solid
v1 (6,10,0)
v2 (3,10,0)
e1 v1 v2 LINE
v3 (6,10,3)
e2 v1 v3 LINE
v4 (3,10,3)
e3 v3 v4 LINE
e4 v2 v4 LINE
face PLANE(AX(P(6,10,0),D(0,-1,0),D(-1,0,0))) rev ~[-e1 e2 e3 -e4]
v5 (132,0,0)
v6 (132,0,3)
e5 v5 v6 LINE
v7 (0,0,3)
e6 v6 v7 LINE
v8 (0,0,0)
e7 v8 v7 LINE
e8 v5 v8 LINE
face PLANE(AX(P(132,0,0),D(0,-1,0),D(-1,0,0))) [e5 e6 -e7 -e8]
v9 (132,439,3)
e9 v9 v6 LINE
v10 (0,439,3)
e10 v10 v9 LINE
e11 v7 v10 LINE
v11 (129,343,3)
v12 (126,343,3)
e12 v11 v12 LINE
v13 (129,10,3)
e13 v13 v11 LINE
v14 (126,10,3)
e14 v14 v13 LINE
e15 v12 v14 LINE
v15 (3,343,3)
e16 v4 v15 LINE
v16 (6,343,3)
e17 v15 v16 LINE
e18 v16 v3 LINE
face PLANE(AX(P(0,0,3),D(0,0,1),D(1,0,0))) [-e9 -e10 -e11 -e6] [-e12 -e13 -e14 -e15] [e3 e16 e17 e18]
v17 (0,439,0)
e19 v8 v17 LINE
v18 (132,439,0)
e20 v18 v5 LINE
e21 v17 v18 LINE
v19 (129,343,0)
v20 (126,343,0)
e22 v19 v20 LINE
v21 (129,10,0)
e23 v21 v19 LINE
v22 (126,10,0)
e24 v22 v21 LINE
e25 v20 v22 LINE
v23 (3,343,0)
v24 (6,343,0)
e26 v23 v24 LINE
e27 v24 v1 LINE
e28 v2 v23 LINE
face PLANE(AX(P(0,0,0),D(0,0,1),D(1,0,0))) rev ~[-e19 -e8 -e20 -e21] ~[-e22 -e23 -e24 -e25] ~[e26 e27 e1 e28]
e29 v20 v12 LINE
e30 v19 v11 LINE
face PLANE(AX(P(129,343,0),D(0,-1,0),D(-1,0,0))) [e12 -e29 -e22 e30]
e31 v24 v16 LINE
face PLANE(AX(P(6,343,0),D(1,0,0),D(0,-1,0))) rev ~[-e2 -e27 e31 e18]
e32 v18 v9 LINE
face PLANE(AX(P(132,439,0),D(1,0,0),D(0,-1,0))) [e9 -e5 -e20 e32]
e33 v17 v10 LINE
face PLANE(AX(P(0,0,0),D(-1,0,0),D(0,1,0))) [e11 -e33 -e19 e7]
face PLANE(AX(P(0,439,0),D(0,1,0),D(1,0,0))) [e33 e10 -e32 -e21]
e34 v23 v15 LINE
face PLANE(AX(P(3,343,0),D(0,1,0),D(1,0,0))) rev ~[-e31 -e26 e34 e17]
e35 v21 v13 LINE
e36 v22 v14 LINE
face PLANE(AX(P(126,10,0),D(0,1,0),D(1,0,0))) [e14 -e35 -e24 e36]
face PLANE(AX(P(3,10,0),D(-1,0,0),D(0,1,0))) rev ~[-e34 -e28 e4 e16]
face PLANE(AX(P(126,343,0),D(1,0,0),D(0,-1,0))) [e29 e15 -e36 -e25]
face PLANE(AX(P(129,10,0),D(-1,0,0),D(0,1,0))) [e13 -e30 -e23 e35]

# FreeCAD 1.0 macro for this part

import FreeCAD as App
import Part
import Sketcher

V = App.Vector


def add_polygon(sketch, points):
    """Adds a closed chain of lines whose ends are joined by coincident constraints."""
    first, n = sketch.GeometryCount, len(points)
    for a, b in zip(points, points[1:] + points[:1]):
        sketch.addGeometry(Part.LineSegment(App.Vector(*a, 0), App.Vector(*b, 0)), False)
    for i in range(n):
        sketch.addConstraint(Sketcher.Constraint("Coincident", first + i, 2, first + (i + 1) % n, 1))

doc = App.newDocument("Part")
body = doc.addObject("PartDesign::Body", "Body")

sketch1 = doc.addObject("Sketcher::SketchObject", "Sketch")
body.addObject(sketch1)
sketch1.AttachmentSupport = (doc.XY_Plane, [""])
sketch1.MapMode = "FlatFace"
add_polygon(sketch1, [(0, 439), (0, 0), (132, 0), (132, 439)])
add_polygon(sketch1, [(3, 10), (3, 343), (6, 343), (6, 10)])
add_polygon(sketch1, [(126, 343), (129, 343), (129, 10), (126, 10)])
sketch1.addConstraint(Sketcher.Constraint("Vertical", 0))
sketch1.addConstraint(Sketcher.Constraint("Horizontal", 1))
sketch1.addConstraint(Sketcher.Constraint("Vertical", 2))
sketch1.addConstraint(Sketcher.Constraint("Horizontal", 3))
sketch1.addConstraint(Sketcher.Constraint("Vertical", 4))
sketch1.addConstraint(Sketcher.Constraint("Horizontal", 5))
sketch1.addConstraint(Sketcher.Constraint("Vertical", 6))
sketch1.addConstraint(Sketcher.Constraint("Horizontal", 7))
sketch1.addConstraint(Sketcher.Constraint("Horizontal", 8))
sketch1.addConstraint(Sketcher.Constraint("Vertical", 9))
sketch1.addConstraint(Sketcher.Constraint("Horizontal", 10))
sketch1.addConstraint(Sketcher.Constraint("Vertical", 11))
sketch1.addConstraint(Sketcher.Constraint("Coincident", 0, 2, -1, 1))
sketch1.addConstraint(Sketcher.Constraint("Horizontal", 5, 2, 8, 2))
sketch1.addConstraint(Sketcher.Constraint("Horizontal", 7, 2, 9, 2))
sketch1.addConstraint(Sketcher.Constraint("Equal", 7, 8))
sketch1.addConstraint(Sketcher.Constraint("DistanceX", 1, 1, 1, 2, 132.0))
sketch1.addConstraint(Sketcher.Constraint("DistanceX", 5, 1, 5, 2, 3.0))
sketch1.addConstraint(Sketcher.Constraint("DistanceY", 0, 2, 0, 1, 439.0))
sketch1.addConstraint(Sketcher.Constraint("DistanceX", -1, 1, 4, 2, 3.0))
sketch1.addConstraint(Sketcher.Constraint("DistanceY", -1, 1, 4, 2, 343.0))
sketch1.addConstraint(Sketcher.Constraint("DistanceY", -1, 1, 6, 2, 10.0))
sketch1.addConstraint(Sketcher.Constraint("DistanceX", 8, 2, 2, 2, 3.0))
pad1 = doc.addObject("PartDesign::Pad", "Pad")
body.addObject(pad1)
pad1.Profile = sketch1
pad1.Length = 3

doc.recompute()
